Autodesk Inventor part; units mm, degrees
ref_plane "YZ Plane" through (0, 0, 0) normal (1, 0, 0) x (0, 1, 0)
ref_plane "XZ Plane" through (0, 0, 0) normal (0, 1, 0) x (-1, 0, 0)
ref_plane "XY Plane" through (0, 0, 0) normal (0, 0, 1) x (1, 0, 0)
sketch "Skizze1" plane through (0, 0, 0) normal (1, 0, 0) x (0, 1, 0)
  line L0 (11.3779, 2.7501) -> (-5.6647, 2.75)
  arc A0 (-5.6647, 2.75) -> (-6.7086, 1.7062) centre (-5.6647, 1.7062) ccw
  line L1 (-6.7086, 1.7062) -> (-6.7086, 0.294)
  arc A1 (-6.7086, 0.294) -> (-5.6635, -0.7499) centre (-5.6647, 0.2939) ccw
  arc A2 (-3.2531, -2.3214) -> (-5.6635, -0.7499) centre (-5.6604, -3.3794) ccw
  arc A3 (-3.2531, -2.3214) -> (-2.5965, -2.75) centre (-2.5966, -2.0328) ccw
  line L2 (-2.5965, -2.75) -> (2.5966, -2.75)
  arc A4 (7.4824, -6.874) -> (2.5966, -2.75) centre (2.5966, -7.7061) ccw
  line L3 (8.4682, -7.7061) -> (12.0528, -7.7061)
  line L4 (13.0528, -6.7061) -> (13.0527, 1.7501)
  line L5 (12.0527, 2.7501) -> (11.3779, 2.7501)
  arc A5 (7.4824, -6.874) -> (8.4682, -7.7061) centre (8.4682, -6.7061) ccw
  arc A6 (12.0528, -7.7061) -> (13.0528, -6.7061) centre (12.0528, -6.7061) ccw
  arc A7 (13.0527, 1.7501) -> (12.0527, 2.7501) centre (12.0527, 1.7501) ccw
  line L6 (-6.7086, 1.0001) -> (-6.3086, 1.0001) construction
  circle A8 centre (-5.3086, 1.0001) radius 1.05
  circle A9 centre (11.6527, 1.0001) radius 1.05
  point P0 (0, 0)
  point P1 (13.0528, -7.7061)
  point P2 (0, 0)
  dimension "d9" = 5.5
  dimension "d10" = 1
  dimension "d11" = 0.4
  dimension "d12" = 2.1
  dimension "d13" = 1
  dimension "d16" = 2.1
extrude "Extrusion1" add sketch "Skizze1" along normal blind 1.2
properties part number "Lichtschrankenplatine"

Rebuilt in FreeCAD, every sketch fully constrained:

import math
import FreeCAD as App
import Part
import Sketcher
Q = App.Units.Quantity

doc = App.newDocument("Part")
body = doc.addObject("PartDesign::Body", "Body")

sketch1 = body.newObject("Sketcher::SketchObject", "Sketch")
sketch1.AttachmentSupport = (doc.getObject("YZ_Plane"), [""])
sketch1.MapMode = "FlatFace"
sketch1.addGeometry(Part.LineSegment(App.Vector(12.0527, 2.7501, 0), App.Vector(11.3779, 2.7501, 0)), False)
sketch1.addGeometry(Part.LineSegment(App.Vector(11.3779, 2.7501, 0), App.Vector(-5.6647, 2.75, 0)), False)
sketch1.addGeometry(Part.ArcOfCircle(Part.Circle(App.Vector(-5.6647, 1.7062, 0), App.Vector(0, 0, 1), 1.0438), math.radians(90), math.radians(180)), False)
sketch1.addGeometry(Part.LineSegment(App.Vector(-6.7086, 1.7062, 0), App.Vector(-6.7086, 0.294, 0)), False)
sketch1.addGeometry(Part.ArcOfCircle(Part.Circle(App.Vector(-5.6647, 0.2939, 0), App.Vector(0, 0, 1), 1.0439), math.radians(179.994511), math.radians(270.06587)), False)
sketch1.addGeometry(Part.ArcOfCircle(Part.Circle(App.Vector(-5.6604, -3.3794, 0), App.Vector(0, 0, 1), 2.629536), math.radians(23.725322), math.radians(90.067548)), False)
sketch1.addGeometry(Part.ArcOfCircle(Part.Circle(App.Vector(-2.5966, -2.0328, 0), App.Vector(0, 0, 1), 0.717135), math.radians(-156.269519), math.radians(-89.992011)), False)
sketch1.addGeometry(Part.LineSegment(App.Vector(-2.5965, -2.75, 0), App.Vector(2.5966, -2.75, 0)), False)
sketch1.addGeometry(Part.ArcOfCircle(Part.Circle(App.Vector(2.5966, -7.7061, 0), App.Vector(0, 0, 1), 4.956151), math.radians(9.6653), math.radians(90)), False)
sketch1.addGeometry(Part.ArcOfCircle(Part.Circle(App.Vector(8.4682, -6.7061, 0), App.Vector(0, 0, 1), 0.999996), math.radians(-170.334218), math.radians(-90)), False)
sketch1.addGeometry(Part.LineSegment(App.Vector(8.4682, -7.7061, 0), App.Vector(12.0528, -7.7061, 0)), False)
sketch1.addGeometry(Part.ArcOfCircle(Part.Circle(App.Vector(12.0528, -6.7061, 0), App.Vector(0, 0, 1), 1), math.radians(-90), math.radians(0)), False)
sketch1.addGeometry(Part.LineSegment(App.Vector(13.0528, -6.7061, 0), App.Vector(13.0527, 1.7501, 0)), False)
sketch1.addGeometry(Part.ArcOfCircle(Part.Circle(App.Vector(12.0527, 1.7501, 0), App.Vector(0, 0, 1), 1), math.radians(0), math.radians(90)), False)
sketch1.addGeometry(Part.Circle(App.Vector(-5.3086, 1.0001, 0), App.Vector(0, 0, 1), 1.05), False)
sketch1.addGeometry(Part.Circle(App.Vector(11.6527, 1.0001, 0), App.Vector(0, 0, 1), 1.05), False)
sketch1.addConstraint(Sketcher.Constraint("Coincident", 0, 2, 1, 1))
sketch1.addConstraint(Sketcher.Constraint("Tangent", 1, 2, 2, 1))
sketch1.addConstraint(Sketcher.Constraint("Tangent", 2, 2, 3, 1))
sketch1.addConstraint(Sketcher.Constraint("Tangent", 3, 2, 4, 1))
sketch1.addConstraint(Sketcher.Constraint("Tangent", 4, 2, 5, 2))
sketch1.addConstraint(Sketcher.Constraint("Tangent", 5, 1, 6, 1))
sketch1.addConstraint(Sketcher.Constraint("Tangent", 6, 2, 7, 1))
sketch1.addConstraint(Sketcher.Constraint("Tangent", 7, 2, 8, 2))
sketch1.addConstraint(Sketcher.Constraint("Tangent", 8, 1, 9, 1))
sketch1.addConstraint(Sketcher.Constraint("Tangent", 9, 2, 10, 1))
sketch1.addConstraint(Sketcher.Constraint("Tangent", 10, 2, 11, 1))
sketch1.addConstraint(Sketcher.Constraint("Tangent", 11, 2, 12, 1))
sketch1.addConstraint(Sketcher.Constraint("Tangent", 12, 2, 13, 1))
sketch1.addConstraint(Sketcher.Constraint("Tangent", 13, 2, 0, 1))
sketch1.addConstraint(Sketcher.Constraint("Horizontal", 0))
sketch1.addConstraint(Sketcher.Constraint("Horizontal", 1))
sketch1.addConstraint(Sketcher.Constraint("Vertical", 3))
sketch1.addConstraint(Sketcher.Constraint("Horizontal", 7))
sketch1.addConstraint(Sketcher.Constraint("Horizontal", 10))
sketch1.addConstraint(Sketcher.Constraint("Vertical", 12))
sketch1.addConstraint(Sketcher.Constraint("Equal", 2, 4))
sketch1.addConstraint(Sketcher.Constraint("Equal", 9, 11))
sketch1.addConstraint(Sketcher.Constraint("Equal", 11, 13))
sketch1.addConstraint(Sketcher.Constraint("Equal", 14, 15))
sketch1.addConstraint(Sketcher.Constraint("Horizontal", 14, 3, 15, 3))
sketch1.addConstraint(Sketcher.Constraint("Horizontal", 8, 3, 9, 2))
sketch1.addConstraint(Sketcher.Constraint("Radius", 9, Q("1 mm")))
sketch1.addConstraint(Sketcher.Constraint("Diameter", 14, Q("2.1 mm")))
sketch1.addConstraint(Sketcher.Constraint("DistanceY", -1, 1, 14, 3, Q("1 mm")))
sketch1.addConstraint(Sketcher.Constraint("DistanceX", 15, 3, 13, 3, Q("0.4 mm")))
sketch1.addConstraint(Sketcher.Constraint("Radius", 4, Q("1.044 mm")))
sketch1.addConstraint(Sketcher.Constraint("DistanceY", 8, 3, 4, 3, Q("8 mm")))
sketch1.addConstraint(Sketcher.Constraint("DistanceY", 6, 2, 4, 2, Q("2 mm")))
sketch1.addConstraint(Sketcher.Constraint("Radius", 5, Q("2.6295 mm")))
sketch1.addConstraint(Sketcher.Constraint("Radius", 6, Q("0.7171 mm")))
sketch1.addConstraint(Sketcher.Constraint("DistanceX", 2, 2, 14, 3, Q("1.4 mm")))
sketch1.addConstraint(Sketcher.Constraint("DistanceX", 7, 1, 7, 2, Q("5.193 mm")))
sketch1.addConstraint(Sketcher.Constraint("DistanceY", -1, 1, 13, 3, Q("1.75 mm")))
sketch1.addConstraint(Sketcher.Constraint("DistanceY", 4, 2, -1, 1, Q("0.75 mm")))
sketch1.addConstraint(Sketcher.Constraint("DistanceX", 0, 2, 0, 1, Q("0.6748 mm")))
sketch1.addConstraint(Sketcher.Constraint("DistanceX", 1, 2, 1, 1, Q("17.0426 mm")))
sketch1.addConstraint(Sketcher.Constraint("DistanceX", 10, 1, 10, 2, Q("3.5846 mm")))
sketch1.addConstraint(Sketcher.Constraint("DistanceX", -1, 1, 0, 2, Q("11.378 mm")))
pad1 = body.newObject("PartDesign::Pad", "Pad")
pad1.Profile = sketch1
pad1.Length = 1.2

doc.recompute()
